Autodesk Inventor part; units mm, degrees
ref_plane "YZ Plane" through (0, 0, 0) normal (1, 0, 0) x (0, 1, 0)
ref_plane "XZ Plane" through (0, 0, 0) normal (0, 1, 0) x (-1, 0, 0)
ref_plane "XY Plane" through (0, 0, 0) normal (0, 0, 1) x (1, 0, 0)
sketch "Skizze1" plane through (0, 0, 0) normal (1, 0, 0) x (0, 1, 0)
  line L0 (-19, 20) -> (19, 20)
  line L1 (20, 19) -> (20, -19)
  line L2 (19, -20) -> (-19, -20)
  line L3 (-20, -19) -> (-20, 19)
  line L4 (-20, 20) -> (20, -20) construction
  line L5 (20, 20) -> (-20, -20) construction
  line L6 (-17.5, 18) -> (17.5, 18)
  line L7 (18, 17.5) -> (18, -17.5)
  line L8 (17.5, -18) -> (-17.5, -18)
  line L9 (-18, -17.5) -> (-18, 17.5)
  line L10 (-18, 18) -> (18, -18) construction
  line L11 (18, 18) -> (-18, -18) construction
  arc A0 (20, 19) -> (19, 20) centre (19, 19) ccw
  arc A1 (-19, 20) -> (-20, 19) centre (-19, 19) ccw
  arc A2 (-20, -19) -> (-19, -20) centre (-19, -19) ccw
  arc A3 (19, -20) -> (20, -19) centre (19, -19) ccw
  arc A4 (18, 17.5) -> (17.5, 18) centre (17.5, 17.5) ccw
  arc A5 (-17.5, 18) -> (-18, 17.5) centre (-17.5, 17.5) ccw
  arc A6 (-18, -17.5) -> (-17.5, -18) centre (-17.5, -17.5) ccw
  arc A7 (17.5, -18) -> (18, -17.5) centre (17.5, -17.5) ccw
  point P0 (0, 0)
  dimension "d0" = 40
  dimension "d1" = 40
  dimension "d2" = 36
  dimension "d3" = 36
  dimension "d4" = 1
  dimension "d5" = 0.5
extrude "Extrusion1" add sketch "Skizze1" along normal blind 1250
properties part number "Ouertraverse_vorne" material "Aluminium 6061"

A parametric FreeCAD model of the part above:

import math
import FreeCAD as App
import Part
import Sketcher

doc = App.newDocument("Part")
body = doc.addObject("PartDesign::Body", "Body")

sketch1 = body.newObject("Sketcher::SketchObject", "Sketch")
sketch1.AttachmentSupport = (doc.getObject("YZ_Plane"), [""])
sketch1.MapMode = "FlatFace"
sketch1.addGeometry([
    Part.LineSegment(App.Vector(19, 20, 0), App.Vector(-19, 20, 0)),
    Part.ArcOfCircle(Part.Circle(App.Vector(-19, 19, 0), App.Vector(0, 0, 1), 1), math.radians(90), math.radians(180)),
    Part.LineSegment(App.Vector(-20, 19, 0), App.Vector(-20, -19, 0)),
    Part.ArcOfCircle(Part.Circle(App.Vector(-19, -19, 0), App.Vector(0, 0, 1), 1), math.radians(180), math.radians(270)),
    Part.LineSegment(App.Vector(-19, -20, 0), App.Vector(19, -20, 0)),
    Part.ArcOfCircle(Part.Circle(App.Vector(19, -19, 0), App.Vector(0, 0, 1), 1), math.radians(-90), math.radians(0)),
    Part.LineSegment(App.Vector(20, -19, 0), App.Vector(20, 19, 0)),
    Part.ArcOfCircle(Part.Circle(App.Vector(19, 19, 0), App.Vector(0, 0, 1), 1), math.radians(0), math.radians(90)),
    Part.ArcOfCircle(Part.Circle(App.Vector(-17.5, 17.5, 0), App.Vector(0, 0, 1), 0.5), math.radians(90), math.radians(180)),
    Part.LineSegment(App.Vector(-17.5, 18, 0), App.Vector(17.5, 18, 0)),
    Part.ArcOfCircle(Part.Circle(App.Vector(17.5, 17.5, 0), App.Vector(0, 0, 1), 0.5), math.radians(0), math.radians(90)),
    Part.LineSegment(App.Vector(18, 17.5, 0), App.Vector(18, -17.5, 0)),
    Part.ArcOfCircle(Part.Circle(App.Vector(17.5, -17.5, 0), App.Vector(0, 0, 1), 0.5), math.radians(-90), math.radians(0)),
    Part.LineSegment(App.Vector(17.5, -18, 0), App.Vector(-17.5, -18, 0)),
    Part.ArcOfCircle(Part.Circle(App.Vector(-17.5, -17.5, 0), App.Vector(0, 0, 1), 0.5), math.radians(180), math.radians(270)),
    Part.LineSegment(App.Vector(-18, -17.5, 0), App.Vector(-18, 17.5, 0)),
], False)
sketch1.addConstraint([
    Sketcher.Constraint("Tangent", 0, 2, 1, 1),
    Sketcher.Constraint("Tangent", 1, 2, 2, 1),
    Sketcher.Constraint("Tangent", 2, 2, 3, 1),
    Sketcher.Constraint("Tangent", 3, 2, 4, 1),
    Sketcher.Constraint("Tangent", 4, 2, 5, 1),
    Sketcher.Constraint("Tangent", 5, 2, 6, 1),
    Sketcher.Constraint("Tangent", 6, 2, 7, 1),
    Sketcher.Constraint("Tangent", 7, 2, 0, 1),
    Sketcher.Constraint("Tangent", 8, 1, 9, 1),
    Sketcher.Constraint("Tangent", 9, 2, 10, 2),
    Sketcher.Constraint("Tangent", 10, 1, 11, 1),
    Sketcher.Constraint("Tangent", 11, 2, 12, 2),
    Sketcher.Constraint("Tangent", 12, 1, 13, 1),
    Sketcher.Constraint("Tangent", 13, 2, 14, 2),
    Sketcher.Constraint("Tangent", 14, 1, 15, 1),
    Sketcher.Constraint("Tangent", 15, 2, 8, 2),
    Sketcher.Constraint("Horizontal", 0),
    Sketcher.Constraint("Vertical", 2),
    Sketcher.Constraint("Horizontal", 4),
    Sketcher.Constraint("Vertical", 6),
    Sketcher.Constraint("Horizontal", 9),
    Sketcher.Constraint("Vertical", 11),
    Sketcher.Constraint("Horizontal", 13),
    Sketcher.Constraint("Vertical", 15),
    Sketcher.Constraint("Equal", 1, 3),
    Sketcher.Constraint("Equal", 3, 5),
    Sketcher.Constraint("Equal", 5, 7),
    Sketcher.Constraint("Equal", 8, 10),
    Sketcher.Constraint("Equal", 10, 12),
    Sketcher.Constraint("Equal", 12, 14),
    Sketcher.Constraint("Symmetric", 1, 3, 5, 3, -1, 1),
    Sketcher.Constraint("Symmetric", 8, 3, 12, 3, -1, 1),
    Sketcher.Constraint("Equal", 4, 2),
    Sketcher.Constraint("Equal", 13, 11),
    Sketcher.Constraint("Radius", 1, 1.0),
    Sketcher.Constraint("Radius", 8, 0.5),
    Sketcher.Constraint("DistanceY", 8, 1, 1, 3, 1.0),
    Sketcher.Constraint("DistanceX", 0, 2, 0, 1, 38.0),
])
pad1 = body.newObject("PartDesign::Pad", "Pad")
pad1.Profile = sketch1
pad1.Length = 1250

doc.recompute()
